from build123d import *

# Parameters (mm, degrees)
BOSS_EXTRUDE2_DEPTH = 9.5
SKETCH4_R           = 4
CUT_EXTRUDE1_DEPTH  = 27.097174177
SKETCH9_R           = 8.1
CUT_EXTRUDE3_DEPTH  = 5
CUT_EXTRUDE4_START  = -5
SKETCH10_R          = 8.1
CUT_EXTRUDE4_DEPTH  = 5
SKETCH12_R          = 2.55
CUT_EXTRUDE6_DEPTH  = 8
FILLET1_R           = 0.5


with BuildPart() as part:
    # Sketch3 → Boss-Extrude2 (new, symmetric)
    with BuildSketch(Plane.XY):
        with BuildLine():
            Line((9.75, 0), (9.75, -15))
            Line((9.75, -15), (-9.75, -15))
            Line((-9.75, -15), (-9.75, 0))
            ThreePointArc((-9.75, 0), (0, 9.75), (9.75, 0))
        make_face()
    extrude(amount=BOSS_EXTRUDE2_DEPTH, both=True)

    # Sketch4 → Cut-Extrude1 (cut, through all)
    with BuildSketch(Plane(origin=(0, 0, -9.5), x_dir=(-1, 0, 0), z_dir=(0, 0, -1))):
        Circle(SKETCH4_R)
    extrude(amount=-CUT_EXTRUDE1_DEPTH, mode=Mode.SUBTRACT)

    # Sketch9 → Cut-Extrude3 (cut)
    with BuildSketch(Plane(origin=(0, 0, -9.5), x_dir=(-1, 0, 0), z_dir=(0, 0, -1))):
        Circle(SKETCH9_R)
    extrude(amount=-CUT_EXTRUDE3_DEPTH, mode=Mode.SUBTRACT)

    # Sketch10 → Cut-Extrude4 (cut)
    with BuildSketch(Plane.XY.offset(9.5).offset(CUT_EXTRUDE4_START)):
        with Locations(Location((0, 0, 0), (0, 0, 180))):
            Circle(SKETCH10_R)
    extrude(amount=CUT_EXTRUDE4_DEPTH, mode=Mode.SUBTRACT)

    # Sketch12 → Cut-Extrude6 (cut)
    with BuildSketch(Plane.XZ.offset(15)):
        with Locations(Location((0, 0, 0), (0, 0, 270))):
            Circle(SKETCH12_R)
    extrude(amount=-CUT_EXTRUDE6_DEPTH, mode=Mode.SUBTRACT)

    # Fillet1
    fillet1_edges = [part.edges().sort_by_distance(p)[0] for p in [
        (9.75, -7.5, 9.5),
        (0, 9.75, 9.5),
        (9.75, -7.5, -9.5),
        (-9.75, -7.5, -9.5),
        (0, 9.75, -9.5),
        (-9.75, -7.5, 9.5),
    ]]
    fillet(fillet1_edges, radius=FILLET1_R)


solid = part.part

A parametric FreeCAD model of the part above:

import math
import FreeCAD as App
import Part
import Sketcher
from FreeCAD import Vector
Q = App.Units.Quantity


def edges_at(feature, points):
    """Names of the edges that pass closest to the given points."""
    edges = feature.Shape.Edges
    near = lambda p: min(range(len(edges)), key=lambda i: edges[i].distToShape(Part.Vertex(*p))[0])
    return sorted({f"Edge{near(p) + 1}" for p in points})

doc = App.newDocument("Part")
body = doc.addObject("PartDesign::Body", "Body")

sketch1 = body.newObject("Sketcher::SketchObject", "Sketch")
sketch1.AttachmentSupport = (doc.getObject("XY_Plane"), [""])
sketch1.MapMode = "FlatFace"
sketch1.addGeometry([
    Part.LineSegment(Vector(9.75, -15, 0), Vector(9.75, 0, 0)),
    Part.ArcOfCircle(Part.Circle(Vector(0, 0, 0), Vector(0, 0, 1), 9.75), math.radians(0), math.radians(180)),
    Part.LineSegment(Vector(-9.75, 0, 0), Vector(-9.75, -15, 0)),
    Part.LineSegment(Vector(-9.75, -15, 0), Vector(9.75, -15, 0)),
], False)
sketch1.addConstraint([
    Sketcher.Constraint("Tangent", 0, 2, 1, 1),
    Sketcher.Constraint("Tangent", 1, 2, 2, 1),
    Sketcher.Constraint("Coincident", 2, 2, 3, 1),
    Sketcher.Constraint("Coincident", 3, 2, 0, 1),
    Sketcher.Constraint("Vertical", 0),
    Sketcher.Constraint("Vertical", 2),
    Sketcher.Constraint("Horizontal", 3),
    Sketcher.Constraint("Coincident", 1, 3, -1, 1),
    Sketcher.Constraint("DistanceY", 0, 1, 0, 2, Q("15 mm")),
    Sketcher.Constraint("Radius", 1, Q("9.75 mm")),
])
pad1 = body.newObject("PartDesign::Pad", "Pad")
pad1.Profile = sketch1
pad1.Length = 19
pad1.Midplane = True

sketch2 = body.newObject("Sketcher::SketchObject", "Sketch001")
sketch2.AttachmentSupport = (doc.getObject("XY_Plane"), [""])
sketch2.MapMode = "FlatFace"
sketch2.AttachmentOffset = App.Placement(Vector(0, 0, -9.5), App.Rotation())
sketch2.addGeometry(Part.Circle(Vector(0, 0, 0), Vector(0, 0, 1), 4), False)
sketch2.addConstraint([
    Sketcher.Constraint("Coincident", 0, 3, -1, 1),
    Sketcher.Constraint("Diameter", 0, Q("8 mm")),
])
pocket1 = body.newObject("PartDesign::Pocket", "Pocket")
pocket1.Profile = sketch2
pocket1.Type = "ThroughAll"
pocket1.Reversed = True

sketch3 = body.newObject("Sketcher::SketchObject", "Sketch002")
sketch3.AttachmentSupport = (doc.getObject("XY_Plane"), [""])
sketch3.MapMode = "FlatFace"
sketch3.AttachmentOffset = App.Placement(Vector(0, 0, -9.5), App.Rotation())
sketch3.addGeometry(Part.Circle(Vector(0, 0, 0), Vector(0, 0, 1), 8.1), False)
sketch3.addConstraint([
    Sketcher.Constraint("Coincident", 0, 3, -1, 1),
    Sketcher.Constraint("Diameter", 0, Q("16.2 mm")),
])
pocket2 = body.newObject("PartDesign::Pocket", "Pocket001")
pocket2.Profile = sketch3
pocket2.Length = 5
pocket2.Reversed = True

sketch4 = body.newObject("Sketcher::SketchObject", "Sketch003")
sketch4.AttachmentSupport = (doc.getObject("XY_Plane"), [""])
sketch4.MapMode = "FlatFace"
sketch4.AttachmentOffset = App.Placement(Vector(0, 0, 4.5), App.Rotation())
sketch4.addGeometry(Part.Circle(Vector(0, 0, 0), Vector(0, 0, 1), 8.1), False)
sketch4.addConstraint([
    Sketcher.Constraint("Coincident", 0, 3, -1, 1),
    Sketcher.Constraint("Diameter", 0, Q("16.2 mm")),
])
pocket3 = body.newObject("PartDesign::Pocket", "Pocket002")
pocket3.Profile = sketch4
pocket3.Length = 5
pocket3.Reversed = True

sketch5 = body.newObject("Sketcher::SketchObject", "Sketch004")
sketch5.AttachmentSupport = (doc.getObject("XZ_Plane"), [""])
sketch5.MapMode = "FlatFace"
sketch5.AttachmentOffset = App.Placement(Vector(0, 0, 15), App.Rotation())
sketch5.addGeometry(Part.Circle(Vector(0, 0, 0), Vector(0, 0, 1), 2.55), False)
sketch5.addConstraint([
    Sketcher.Constraint("Coincident", 0, 3, -1, 1),
    Sketcher.Constraint("Diameter", 0, Q("5.1 mm")),
])
pocket4 = body.newObject("PartDesign::Pocket", "Pocket003")
pocket4.Profile = sketch5
pocket4.Length = 8
doc.recompute()

fillet = body.newObject("PartDesign::Fillet", "Fillet")
fillet.Base = (pocket4, edges_at(pocket4, [
    (9.75, -7.5, 9.5),
    (0, 9.75, 9.5),
    (9.75, -7.5, -9.5),
    (-9.75, -7.5, -9.5),
    (0, 9.75, -9.5),
    (-9.75, -7.5, 9.5),
]))
fillet.Radius = 0.5

doc.recompute()
